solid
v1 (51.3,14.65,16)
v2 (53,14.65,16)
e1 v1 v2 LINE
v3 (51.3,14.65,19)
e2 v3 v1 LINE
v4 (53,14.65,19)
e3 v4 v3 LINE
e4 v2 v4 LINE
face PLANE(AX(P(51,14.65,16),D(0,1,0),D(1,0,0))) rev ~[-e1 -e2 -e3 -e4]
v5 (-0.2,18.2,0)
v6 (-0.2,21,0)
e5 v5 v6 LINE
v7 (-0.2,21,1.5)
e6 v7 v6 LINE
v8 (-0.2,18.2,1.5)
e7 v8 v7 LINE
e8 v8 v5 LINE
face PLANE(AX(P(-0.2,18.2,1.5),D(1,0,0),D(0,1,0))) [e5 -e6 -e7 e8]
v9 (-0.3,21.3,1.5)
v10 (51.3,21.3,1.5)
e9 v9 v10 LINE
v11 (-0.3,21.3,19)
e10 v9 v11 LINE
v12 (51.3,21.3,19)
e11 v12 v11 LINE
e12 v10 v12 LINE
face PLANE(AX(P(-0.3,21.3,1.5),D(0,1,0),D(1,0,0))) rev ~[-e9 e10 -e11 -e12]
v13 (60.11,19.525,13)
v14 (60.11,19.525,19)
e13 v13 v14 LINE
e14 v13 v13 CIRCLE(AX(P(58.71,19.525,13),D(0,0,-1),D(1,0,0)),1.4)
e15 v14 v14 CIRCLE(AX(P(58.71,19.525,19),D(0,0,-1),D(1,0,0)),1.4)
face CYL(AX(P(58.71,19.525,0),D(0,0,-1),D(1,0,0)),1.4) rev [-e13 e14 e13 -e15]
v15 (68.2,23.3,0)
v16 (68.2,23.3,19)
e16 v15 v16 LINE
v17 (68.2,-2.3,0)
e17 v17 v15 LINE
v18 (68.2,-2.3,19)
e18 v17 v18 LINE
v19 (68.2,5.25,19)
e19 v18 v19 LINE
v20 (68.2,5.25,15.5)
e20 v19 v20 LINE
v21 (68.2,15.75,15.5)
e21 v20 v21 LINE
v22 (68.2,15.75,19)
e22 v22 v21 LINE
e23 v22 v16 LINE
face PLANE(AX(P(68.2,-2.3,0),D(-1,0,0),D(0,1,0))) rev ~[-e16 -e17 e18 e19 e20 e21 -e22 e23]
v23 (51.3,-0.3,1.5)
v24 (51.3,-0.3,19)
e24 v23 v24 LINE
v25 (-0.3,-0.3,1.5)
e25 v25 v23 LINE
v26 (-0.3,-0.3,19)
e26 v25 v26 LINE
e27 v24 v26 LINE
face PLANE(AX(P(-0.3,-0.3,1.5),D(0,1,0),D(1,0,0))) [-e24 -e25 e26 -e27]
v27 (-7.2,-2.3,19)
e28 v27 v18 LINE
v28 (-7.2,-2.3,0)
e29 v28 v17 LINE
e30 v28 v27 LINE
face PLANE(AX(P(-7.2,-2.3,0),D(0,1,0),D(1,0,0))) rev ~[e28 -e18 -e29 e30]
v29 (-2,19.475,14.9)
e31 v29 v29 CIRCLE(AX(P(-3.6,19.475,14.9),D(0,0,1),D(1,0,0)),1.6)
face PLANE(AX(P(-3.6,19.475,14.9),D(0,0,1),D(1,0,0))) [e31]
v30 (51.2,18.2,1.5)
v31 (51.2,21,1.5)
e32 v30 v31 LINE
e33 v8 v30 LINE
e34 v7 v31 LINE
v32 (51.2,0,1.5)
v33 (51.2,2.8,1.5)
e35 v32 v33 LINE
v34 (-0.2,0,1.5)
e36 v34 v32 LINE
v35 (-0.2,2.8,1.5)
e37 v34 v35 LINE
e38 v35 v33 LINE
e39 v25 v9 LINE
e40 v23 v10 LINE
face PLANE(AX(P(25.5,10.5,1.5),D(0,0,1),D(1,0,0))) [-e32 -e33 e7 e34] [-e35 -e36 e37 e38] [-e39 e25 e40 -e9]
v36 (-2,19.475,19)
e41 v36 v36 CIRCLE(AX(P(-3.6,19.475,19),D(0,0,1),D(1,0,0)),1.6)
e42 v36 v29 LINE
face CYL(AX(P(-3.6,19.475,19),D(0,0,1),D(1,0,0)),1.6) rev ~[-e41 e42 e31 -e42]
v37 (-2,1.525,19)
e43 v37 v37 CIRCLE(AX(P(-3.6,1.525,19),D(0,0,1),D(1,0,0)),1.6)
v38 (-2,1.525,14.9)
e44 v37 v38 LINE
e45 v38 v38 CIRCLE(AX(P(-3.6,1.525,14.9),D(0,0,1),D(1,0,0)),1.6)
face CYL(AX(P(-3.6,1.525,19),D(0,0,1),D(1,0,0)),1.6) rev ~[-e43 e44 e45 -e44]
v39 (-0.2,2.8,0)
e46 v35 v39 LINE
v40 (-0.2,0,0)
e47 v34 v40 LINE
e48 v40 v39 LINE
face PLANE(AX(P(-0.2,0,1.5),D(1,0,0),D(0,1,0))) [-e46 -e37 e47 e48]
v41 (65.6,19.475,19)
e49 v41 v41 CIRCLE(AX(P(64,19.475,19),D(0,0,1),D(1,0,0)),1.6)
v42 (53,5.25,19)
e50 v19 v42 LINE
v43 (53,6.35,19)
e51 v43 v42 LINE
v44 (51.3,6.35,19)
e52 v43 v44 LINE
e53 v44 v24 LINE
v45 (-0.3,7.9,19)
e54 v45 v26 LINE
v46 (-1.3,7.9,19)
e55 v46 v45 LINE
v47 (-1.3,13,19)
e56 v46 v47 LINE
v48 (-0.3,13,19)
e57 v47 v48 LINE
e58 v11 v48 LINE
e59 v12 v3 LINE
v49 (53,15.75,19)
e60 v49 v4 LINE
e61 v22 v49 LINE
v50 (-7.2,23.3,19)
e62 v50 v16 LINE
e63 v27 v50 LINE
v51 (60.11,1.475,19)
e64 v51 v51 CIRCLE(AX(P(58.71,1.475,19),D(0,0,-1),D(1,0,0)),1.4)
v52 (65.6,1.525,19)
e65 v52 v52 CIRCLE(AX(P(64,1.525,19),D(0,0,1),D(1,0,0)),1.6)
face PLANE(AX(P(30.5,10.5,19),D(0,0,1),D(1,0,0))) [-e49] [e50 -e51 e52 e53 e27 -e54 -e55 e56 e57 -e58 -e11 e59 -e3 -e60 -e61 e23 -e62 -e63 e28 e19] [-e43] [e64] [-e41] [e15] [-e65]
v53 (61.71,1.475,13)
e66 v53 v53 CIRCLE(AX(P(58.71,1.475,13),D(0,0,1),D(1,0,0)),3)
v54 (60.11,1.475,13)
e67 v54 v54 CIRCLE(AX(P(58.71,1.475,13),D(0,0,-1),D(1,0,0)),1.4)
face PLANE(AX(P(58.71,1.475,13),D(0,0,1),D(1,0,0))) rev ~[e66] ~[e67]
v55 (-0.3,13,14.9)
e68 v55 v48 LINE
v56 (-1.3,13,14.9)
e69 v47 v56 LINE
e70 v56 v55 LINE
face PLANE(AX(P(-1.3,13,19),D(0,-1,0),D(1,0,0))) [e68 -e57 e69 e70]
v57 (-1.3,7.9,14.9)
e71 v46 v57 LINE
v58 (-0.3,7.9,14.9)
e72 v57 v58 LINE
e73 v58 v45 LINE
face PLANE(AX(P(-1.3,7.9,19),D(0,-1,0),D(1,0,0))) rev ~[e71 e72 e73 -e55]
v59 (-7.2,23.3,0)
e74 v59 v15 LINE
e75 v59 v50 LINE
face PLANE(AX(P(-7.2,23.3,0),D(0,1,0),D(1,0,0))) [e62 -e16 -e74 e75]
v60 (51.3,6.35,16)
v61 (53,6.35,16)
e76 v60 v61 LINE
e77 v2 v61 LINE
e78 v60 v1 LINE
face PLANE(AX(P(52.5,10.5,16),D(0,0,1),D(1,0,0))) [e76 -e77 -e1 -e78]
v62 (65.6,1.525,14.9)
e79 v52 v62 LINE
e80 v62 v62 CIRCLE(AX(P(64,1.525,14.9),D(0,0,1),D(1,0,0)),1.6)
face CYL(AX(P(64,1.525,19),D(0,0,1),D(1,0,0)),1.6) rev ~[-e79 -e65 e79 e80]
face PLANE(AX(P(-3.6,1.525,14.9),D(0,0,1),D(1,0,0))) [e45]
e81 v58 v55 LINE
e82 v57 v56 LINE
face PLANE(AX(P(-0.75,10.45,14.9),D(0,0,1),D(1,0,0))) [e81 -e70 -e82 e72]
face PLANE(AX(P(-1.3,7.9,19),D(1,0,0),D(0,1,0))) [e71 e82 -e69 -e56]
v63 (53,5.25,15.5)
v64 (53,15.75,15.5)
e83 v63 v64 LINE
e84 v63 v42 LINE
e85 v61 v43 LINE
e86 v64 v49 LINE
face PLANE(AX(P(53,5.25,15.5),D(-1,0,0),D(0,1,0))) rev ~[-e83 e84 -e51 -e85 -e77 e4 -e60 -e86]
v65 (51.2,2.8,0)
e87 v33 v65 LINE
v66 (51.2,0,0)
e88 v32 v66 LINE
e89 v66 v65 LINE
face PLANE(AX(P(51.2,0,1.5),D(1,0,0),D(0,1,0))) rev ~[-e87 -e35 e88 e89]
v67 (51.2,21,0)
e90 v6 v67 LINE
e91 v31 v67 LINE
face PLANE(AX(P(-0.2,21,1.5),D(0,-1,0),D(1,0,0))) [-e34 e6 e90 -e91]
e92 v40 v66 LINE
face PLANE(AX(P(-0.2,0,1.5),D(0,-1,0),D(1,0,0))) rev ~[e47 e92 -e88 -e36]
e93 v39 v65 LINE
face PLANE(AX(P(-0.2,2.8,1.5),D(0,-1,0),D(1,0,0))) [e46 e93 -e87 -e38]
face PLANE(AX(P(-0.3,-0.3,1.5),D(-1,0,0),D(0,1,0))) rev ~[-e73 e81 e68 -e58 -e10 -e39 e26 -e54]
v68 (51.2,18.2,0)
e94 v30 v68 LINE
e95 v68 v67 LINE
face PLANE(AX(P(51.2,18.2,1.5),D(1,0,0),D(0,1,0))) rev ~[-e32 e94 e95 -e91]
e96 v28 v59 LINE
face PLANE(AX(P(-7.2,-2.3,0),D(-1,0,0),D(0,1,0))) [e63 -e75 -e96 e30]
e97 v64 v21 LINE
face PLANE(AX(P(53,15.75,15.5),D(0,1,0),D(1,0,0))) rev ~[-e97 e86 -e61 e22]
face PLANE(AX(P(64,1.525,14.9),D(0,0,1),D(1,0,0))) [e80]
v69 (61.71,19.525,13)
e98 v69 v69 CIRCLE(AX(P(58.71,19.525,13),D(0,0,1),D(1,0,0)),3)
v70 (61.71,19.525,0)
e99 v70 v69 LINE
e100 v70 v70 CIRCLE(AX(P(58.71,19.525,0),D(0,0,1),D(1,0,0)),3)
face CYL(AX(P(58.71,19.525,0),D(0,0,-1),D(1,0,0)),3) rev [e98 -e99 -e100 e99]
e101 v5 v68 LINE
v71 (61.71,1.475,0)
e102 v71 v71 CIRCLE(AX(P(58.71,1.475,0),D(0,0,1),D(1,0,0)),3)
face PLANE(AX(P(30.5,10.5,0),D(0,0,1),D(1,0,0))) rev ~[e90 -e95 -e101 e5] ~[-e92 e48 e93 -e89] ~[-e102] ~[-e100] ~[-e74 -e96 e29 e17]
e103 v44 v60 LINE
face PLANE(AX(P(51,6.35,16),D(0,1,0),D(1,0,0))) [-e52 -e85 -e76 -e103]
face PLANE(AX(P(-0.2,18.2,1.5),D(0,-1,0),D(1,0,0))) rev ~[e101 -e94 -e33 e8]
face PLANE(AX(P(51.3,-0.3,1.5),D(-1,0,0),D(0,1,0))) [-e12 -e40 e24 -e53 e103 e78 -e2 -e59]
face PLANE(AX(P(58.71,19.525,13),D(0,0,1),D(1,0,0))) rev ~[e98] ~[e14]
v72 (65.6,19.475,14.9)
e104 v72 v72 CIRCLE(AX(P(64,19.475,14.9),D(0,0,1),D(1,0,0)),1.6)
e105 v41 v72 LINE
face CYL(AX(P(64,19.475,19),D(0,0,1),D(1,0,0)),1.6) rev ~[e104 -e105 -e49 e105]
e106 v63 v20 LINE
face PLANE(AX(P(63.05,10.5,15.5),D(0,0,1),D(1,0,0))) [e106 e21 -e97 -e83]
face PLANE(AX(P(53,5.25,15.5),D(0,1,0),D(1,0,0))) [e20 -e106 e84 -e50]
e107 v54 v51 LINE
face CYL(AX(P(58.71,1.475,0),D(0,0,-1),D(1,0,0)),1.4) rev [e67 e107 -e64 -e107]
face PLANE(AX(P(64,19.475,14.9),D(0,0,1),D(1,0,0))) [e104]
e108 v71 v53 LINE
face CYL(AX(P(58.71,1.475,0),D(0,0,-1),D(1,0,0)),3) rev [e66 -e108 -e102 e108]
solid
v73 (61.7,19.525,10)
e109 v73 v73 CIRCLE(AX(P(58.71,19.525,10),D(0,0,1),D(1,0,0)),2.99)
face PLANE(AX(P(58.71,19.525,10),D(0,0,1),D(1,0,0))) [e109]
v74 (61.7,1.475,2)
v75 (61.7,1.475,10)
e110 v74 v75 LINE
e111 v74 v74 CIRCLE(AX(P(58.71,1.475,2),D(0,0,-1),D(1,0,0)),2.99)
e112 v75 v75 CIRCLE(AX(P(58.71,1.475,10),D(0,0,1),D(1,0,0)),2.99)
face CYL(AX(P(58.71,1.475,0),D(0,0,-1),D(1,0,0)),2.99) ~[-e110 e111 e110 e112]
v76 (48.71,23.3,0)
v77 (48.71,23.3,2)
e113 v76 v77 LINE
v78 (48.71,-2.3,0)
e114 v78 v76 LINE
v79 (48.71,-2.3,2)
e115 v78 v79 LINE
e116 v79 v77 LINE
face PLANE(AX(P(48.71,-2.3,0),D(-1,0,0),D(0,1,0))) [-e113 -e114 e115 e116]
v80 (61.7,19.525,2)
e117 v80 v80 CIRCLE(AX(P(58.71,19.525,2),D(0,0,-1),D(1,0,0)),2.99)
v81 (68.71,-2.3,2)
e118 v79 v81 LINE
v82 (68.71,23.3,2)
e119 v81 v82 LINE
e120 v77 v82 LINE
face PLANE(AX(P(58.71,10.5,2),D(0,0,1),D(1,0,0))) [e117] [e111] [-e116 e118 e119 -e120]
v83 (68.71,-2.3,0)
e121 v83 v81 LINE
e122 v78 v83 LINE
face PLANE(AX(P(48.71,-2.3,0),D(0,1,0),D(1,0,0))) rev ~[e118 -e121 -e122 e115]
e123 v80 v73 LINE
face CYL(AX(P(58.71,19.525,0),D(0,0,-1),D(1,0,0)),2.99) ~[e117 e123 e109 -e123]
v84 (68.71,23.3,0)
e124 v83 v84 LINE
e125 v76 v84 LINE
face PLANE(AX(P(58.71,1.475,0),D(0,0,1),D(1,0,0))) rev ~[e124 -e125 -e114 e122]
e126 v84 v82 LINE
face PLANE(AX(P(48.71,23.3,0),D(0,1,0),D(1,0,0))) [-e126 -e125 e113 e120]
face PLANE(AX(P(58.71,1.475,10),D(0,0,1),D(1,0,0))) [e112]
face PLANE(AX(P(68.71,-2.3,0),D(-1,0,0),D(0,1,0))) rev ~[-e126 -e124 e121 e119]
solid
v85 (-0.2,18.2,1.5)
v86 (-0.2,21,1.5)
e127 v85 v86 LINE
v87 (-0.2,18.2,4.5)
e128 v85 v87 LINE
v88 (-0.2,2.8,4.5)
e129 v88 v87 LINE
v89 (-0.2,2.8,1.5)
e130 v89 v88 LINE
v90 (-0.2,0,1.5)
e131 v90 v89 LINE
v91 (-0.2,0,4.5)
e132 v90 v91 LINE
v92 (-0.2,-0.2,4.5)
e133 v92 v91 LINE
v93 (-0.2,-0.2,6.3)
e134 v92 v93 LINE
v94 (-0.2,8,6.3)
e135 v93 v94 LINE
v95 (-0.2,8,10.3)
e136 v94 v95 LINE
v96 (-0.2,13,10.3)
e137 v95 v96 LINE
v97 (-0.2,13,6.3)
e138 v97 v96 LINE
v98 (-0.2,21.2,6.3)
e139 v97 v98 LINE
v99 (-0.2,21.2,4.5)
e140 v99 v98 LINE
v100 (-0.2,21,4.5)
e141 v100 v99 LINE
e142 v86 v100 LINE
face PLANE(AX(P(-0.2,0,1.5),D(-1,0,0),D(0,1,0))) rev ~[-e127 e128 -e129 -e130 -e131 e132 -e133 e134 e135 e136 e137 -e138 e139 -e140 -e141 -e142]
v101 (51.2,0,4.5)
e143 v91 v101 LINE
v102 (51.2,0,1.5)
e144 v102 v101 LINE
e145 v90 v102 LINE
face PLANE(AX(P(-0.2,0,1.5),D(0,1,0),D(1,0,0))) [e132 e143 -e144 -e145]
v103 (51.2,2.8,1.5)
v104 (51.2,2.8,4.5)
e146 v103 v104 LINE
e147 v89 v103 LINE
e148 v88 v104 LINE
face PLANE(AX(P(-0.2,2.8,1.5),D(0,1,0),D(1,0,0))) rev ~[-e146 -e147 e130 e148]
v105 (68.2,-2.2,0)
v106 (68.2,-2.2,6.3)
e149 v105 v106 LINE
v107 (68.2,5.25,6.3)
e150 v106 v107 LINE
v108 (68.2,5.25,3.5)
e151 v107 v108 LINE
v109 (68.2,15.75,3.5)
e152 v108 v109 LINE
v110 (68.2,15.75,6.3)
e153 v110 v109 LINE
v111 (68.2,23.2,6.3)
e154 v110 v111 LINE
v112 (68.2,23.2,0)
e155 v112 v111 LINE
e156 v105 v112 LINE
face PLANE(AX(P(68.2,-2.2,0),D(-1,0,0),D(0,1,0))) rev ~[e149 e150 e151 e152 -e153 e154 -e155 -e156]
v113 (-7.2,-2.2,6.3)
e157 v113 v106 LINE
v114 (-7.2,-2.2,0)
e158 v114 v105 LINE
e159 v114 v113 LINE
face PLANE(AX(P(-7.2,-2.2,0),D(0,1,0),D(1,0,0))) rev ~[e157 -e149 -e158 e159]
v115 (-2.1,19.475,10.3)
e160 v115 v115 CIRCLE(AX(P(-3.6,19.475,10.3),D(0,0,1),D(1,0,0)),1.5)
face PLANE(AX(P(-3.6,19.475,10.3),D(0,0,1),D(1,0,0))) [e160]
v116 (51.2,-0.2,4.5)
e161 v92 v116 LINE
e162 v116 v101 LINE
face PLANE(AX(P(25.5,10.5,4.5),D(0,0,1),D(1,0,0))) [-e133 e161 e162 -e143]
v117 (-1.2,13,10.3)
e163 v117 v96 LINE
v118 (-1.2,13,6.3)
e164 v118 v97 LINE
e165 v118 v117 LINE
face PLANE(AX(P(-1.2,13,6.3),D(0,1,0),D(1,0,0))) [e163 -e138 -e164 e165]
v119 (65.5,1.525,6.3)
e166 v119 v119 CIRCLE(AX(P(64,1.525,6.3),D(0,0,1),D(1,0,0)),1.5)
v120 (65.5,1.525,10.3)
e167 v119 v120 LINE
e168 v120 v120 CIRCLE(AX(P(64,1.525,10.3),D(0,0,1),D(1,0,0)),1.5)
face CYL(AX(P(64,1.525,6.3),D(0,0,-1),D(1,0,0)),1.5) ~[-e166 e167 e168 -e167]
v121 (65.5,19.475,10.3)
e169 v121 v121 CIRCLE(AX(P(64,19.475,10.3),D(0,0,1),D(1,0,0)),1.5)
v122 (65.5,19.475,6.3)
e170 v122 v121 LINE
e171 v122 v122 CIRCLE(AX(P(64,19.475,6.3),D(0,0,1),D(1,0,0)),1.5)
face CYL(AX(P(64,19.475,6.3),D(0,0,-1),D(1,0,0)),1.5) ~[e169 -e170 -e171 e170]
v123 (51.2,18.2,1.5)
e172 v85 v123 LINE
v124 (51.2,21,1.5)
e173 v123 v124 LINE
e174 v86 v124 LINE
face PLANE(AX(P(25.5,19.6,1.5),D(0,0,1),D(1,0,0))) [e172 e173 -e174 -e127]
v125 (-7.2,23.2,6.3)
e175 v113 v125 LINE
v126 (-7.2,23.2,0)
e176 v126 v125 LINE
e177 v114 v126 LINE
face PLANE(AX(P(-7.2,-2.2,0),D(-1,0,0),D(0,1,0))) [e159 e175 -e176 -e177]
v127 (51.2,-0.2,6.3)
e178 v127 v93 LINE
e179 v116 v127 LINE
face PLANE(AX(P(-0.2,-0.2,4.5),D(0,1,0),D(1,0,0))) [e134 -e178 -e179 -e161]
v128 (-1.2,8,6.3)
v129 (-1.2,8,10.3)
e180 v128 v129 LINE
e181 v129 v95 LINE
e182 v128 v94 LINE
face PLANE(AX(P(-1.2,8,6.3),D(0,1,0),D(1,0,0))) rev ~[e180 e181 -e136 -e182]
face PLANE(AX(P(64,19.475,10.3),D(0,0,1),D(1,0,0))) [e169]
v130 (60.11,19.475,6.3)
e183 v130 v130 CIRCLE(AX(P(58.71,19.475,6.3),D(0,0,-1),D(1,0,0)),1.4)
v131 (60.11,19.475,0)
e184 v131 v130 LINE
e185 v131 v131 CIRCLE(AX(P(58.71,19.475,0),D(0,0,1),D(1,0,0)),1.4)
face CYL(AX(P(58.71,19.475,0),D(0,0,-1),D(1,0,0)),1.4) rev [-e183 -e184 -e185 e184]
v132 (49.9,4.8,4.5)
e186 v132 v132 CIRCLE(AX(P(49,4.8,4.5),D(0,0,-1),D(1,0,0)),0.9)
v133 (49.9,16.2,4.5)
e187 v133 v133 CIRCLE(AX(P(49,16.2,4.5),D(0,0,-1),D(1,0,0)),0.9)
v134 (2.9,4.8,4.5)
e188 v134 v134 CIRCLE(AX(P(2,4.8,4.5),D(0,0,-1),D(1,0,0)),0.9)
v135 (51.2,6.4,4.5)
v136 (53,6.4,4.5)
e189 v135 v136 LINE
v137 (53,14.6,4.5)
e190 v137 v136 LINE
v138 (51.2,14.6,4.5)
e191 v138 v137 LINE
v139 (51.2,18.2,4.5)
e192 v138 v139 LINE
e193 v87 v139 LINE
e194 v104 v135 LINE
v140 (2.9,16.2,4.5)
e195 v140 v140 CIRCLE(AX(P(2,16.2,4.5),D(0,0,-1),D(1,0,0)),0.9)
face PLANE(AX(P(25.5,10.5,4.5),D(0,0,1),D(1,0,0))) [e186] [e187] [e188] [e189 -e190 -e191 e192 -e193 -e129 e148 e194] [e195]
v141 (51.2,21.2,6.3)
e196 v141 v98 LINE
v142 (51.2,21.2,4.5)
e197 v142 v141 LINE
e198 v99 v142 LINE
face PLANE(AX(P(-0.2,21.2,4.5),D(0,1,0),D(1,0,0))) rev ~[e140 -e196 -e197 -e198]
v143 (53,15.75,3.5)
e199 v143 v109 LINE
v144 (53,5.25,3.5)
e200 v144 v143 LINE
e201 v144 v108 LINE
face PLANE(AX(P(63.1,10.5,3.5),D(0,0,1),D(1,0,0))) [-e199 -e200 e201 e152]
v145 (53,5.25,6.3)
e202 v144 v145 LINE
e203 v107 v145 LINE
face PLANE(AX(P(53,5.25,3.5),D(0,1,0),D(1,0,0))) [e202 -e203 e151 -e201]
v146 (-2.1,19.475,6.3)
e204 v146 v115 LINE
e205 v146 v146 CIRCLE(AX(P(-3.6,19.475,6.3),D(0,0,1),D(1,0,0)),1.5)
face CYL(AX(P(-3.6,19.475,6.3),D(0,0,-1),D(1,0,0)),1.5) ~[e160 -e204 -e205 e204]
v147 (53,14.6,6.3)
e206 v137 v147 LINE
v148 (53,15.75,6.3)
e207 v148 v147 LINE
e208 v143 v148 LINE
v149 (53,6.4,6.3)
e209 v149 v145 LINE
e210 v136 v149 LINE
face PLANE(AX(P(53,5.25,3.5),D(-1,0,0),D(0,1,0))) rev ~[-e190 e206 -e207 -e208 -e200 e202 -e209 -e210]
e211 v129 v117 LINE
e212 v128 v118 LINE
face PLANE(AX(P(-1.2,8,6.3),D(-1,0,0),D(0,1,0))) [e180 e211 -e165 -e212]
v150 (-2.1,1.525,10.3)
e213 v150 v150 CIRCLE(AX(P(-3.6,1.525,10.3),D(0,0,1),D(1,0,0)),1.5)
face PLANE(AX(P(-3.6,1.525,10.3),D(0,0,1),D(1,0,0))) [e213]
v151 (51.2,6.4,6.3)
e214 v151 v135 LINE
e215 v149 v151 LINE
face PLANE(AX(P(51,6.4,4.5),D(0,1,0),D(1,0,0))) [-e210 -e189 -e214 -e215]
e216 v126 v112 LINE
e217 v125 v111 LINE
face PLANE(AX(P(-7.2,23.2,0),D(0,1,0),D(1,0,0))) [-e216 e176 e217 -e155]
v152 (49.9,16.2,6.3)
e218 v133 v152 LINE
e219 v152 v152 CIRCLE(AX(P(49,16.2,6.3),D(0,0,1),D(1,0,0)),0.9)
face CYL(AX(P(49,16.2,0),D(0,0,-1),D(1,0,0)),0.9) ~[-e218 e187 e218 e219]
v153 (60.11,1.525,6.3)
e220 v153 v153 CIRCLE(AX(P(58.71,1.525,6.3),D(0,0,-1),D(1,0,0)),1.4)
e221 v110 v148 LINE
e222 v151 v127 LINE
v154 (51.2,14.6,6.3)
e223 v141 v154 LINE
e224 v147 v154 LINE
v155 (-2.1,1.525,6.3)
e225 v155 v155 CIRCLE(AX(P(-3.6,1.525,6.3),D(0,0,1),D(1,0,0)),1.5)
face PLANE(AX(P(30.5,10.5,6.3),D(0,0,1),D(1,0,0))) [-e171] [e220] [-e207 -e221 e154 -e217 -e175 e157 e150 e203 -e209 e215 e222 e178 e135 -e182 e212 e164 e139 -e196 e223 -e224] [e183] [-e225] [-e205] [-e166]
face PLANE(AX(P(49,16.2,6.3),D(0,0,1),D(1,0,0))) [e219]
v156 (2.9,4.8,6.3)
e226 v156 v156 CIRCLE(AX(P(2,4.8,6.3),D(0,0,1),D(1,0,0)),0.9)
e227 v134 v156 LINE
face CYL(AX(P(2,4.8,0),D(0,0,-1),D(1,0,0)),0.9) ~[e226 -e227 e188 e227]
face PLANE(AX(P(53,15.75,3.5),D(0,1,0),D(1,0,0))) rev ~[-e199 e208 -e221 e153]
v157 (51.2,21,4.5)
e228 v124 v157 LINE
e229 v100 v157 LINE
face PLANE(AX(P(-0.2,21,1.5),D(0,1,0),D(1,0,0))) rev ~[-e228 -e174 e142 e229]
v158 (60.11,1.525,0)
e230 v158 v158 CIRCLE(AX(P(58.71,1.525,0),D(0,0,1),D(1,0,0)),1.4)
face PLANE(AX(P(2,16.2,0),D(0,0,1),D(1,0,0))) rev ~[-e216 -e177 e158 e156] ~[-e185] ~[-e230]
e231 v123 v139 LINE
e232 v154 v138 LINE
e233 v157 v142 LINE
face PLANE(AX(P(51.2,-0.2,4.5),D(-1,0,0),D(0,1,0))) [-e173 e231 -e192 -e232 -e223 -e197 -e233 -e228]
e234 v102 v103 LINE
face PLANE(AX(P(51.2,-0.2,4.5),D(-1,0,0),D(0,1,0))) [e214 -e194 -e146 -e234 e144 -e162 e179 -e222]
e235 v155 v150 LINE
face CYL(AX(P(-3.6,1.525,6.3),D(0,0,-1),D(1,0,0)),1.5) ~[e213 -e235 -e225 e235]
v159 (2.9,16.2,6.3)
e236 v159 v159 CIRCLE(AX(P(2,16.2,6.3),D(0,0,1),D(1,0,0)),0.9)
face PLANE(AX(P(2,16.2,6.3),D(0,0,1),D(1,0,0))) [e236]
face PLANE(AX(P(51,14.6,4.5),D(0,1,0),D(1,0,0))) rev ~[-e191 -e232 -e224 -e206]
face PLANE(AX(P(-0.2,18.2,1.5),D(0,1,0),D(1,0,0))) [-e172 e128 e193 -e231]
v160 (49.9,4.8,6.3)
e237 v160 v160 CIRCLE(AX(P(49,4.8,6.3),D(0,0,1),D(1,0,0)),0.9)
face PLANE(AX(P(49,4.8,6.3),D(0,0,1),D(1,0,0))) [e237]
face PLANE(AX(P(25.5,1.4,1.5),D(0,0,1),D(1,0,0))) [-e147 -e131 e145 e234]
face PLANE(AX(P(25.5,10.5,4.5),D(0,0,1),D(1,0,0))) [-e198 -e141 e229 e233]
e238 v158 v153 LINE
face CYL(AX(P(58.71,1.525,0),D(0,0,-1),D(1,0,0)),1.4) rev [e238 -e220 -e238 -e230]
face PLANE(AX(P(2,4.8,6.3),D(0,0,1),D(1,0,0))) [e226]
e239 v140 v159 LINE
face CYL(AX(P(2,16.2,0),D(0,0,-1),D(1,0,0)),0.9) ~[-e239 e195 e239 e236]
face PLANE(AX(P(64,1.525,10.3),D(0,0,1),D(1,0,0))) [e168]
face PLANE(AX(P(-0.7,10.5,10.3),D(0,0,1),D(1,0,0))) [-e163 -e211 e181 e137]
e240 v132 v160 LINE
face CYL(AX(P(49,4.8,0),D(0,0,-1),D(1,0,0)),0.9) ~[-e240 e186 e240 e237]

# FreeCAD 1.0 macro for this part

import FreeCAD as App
import Part
import Sketcher
from FreeCAD import Vector
Q = App.Units.Quantity


def add_polygon(sketch, points):
    """Adds a closed chain of lines whose ends are joined by coincident constraints."""
    first, n = sketch.GeometryCount, len(points)
    for a, b in zip(points, points[1:] + points[:1]):
        sketch.addGeometry(Part.LineSegment(App.Vector(*a, 0), App.Vector(*b, 0)), False)
    for i in range(n):
        sketch.addConstraint(Sketcher.Constraint("Coincident", first + i, 2, first + (i + 1) % n, 1))

doc = App.newDocument("Part")
body = doc.addObject("PartDesign::Body", "Body")

# Sketch on XY plane
sketch1 = body.newObject("Sketcher::SketchObject", "Sketch")
sketch1.AttachmentSupport = (doc.getObject("XY_Plane"), [""])
sketch1.MapMode = "FlatFace"
add_polygon(sketch1, [(-7, 23), (-7, -2), (68, -2), (68, 23)])  # lines 0-3
sketch1.addConstraint(Sketcher.Constraint("Vertical", 0))
sketch1.addConstraint(Sketcher.Constraint("Horizontal", 1))
sketch1.addConstraint(Sketcher.Constraint("Vertical", 2))
sketch1.addConstraint(Sketcher.Constraint("Horizontal", 3))
sketch1.addConstraint(Sketcher.Constraint("DistanceX", 1, 1, 1, 2, Q("75.4 mm")))
sketch1.addConstraint(Sketcher.Constraint("DistanceY", 0, 2, 0, 1, Q("25.4 mm")))
sketch1.addConstraint(Sketcher.Constraint("DistanceX", 0, 2, -1, 1, Q("7.2 mm")))
sketch1.addConstraint(Sketcher.Constraint("DistanceY", 0, 2, -1, 1, Q("2.2 mm")))
pad1 = body.newObject("PartDesign::Pad", "Pad")
pad1.Profile = sketch1
pad1.Length = 6.3

# Sketch on XY plane
sketch2 = body.newObject("Sketcher::SketchObject", "Sketch001")
sketch2.AttachmentSupport = (doc.getObject("XY_Plane"), [""])
sketch2.MapMode = "FlatFace"
sketch2.AttachmentOffset = App.Placement(Vector(0, 0, 1.5), App.Rotation())
add_polygon(sketch2, [(-0.2, 2.8), (-0.2, 0), (51.2, 0), (51.2, 2.8)])  # lines 0-3
add_polygon(sketch2, [(-0.2, 21), (-0.2, 18.2), (51.2, 18.2), (51.2, 21)])  # lines 4-7
sketch2.addConstraint(Sketcher.Constraint("Vertical", 0))
sketch2.addConstraint(Sketcher.Constraint("Horizontal", 1))
sketch2.addConstraint(Sketcher.Constraint("Vertical", 2))
sketch2.addConstraint(Sketcher.Constraint("Horizontal", 3))
sketch2.addConstraint(Sketcher.Constraint("Vertical", 4))
sketch2.addConstraint(Sketcher.Constraint("Horizontal", 5))
sketch2.addConstraint(Sketcher.Constraint("Vertical", 6))
sketch2.addConstraint(Sketcher.Constraint("Horizontal", 7))
sketch2.addConstraint(Sketcher.Constraint("PointOnObject", 0, 2, -1))
sketch2.addConstraint(Sketcher.Constraint("Vertical", 3, 2, 4, 2))
sketch2.addConstraint(Sketcher.Constraint("Vertical", 2, 2, 5, 2))
sketch2.addConstraint(Sketcher.Constraint("Equal", 2, 4))
sketch2.addConstraint(Sketcher.Constraint("DistanceX", 1, 1, 1, 2, Q("51.4 mm")))
sketch2.addConstraint(Sketcher.Constraint("DistanceY", 0, 2, 0, 1, Q("2.8 mm")))
sketch2.addConstraint(Sketcher.Constraint("DistanceY", -1, 1, 6, 2, Q("21 mm")))
sketch2.addConstraint(Sketcher.Constraint("DistanceX", 0, 2, -1, 1, Q("0.2 mm")))
pocket1 = body.newObject("PartDesign::Pocket", "Pocket")
pocket1.Profile = sketch2
pocket1.Type = "ThroughAll"
pocket1.Reversed = True

# Sketch on XY plane
sketch3 = body.newObject("Sketcher::SketchObject", "Sketch002")
sketch3.AttachmentSupport = (doc.getObject("XY_Plane"), [""])
sketch3.MapMode = "FlatFace"
sketch3.AttachmentOffset = App.Placement(Vector(0, 0, 4.5), App.Rotation())
add_polygon(sketch3, [(0, 21), (0, 0), (51, 0), (51, 21)])  # lines 0-3
sketch3.addConstraint(Sketcher.Constraint("Vertical", 0))
sketch3.addConstraint(Sketcher.Constraint("Horizontal", 1))
sketch3.addConstraint(Sketcher.Constraint("Vertical", 2))
sketch3.addConstraint(Sketcher.Constraint("Horizontal", 3))
sketch3.addConstraint(Sketcher.Constraint("DistanceX", 1, 1, 1, 2, Q("51.4 mm")))
sketch3.addConstraint(Sketcher.Constraint("DistanceY", 0, 2, 0, 1, Q("21.4 mm")))
sketch3.addConstraint(Sketcher.Constraint("DistanceX", 0, 2, -1, 1, Q("0.2 mm")))
sketch3.addConstraint(Sketcher.Constraint("DistanceY", 0, 2, -1, 1, Q("0.2 mm")))
pocket2 = body.newObject("PartDesign::Pocket", "Pocket001")
pocket2.Profile = sketch3
pocket2.Type = "ThroughAll"
pocket2.Reversed = True

# Sketch on XY plane
sketch4 = body.newObject("Sketcher::SketchObject", "Sketch003")
sketch4.AttachmentSupport = (doc.getObject("XY_Plane"), [""])
sketch4.MapMode = "FlatFace"
sketch4.addGeometry(Part.Circle(Vector(2, 16.2, 0), Vector(0, 0, 1), 0.9), False)
sketch4.addGeometry(Part.Circle(Vector(2, 4.8, 0), Vector(0, 0, 1), 0.9), False)
sketch4.addGeometry(Part.Circle(Vector(49, 16.2, 0), Vector(0, 0, 1), 0.9), False)
sketch4.addGeometry(Part.Circle(Vector(49, 4.8, 0), Vector(0, 0, 1), 0.9), False)
sketch4.addConstraint(Sketcher.Constraint("Equal", 0, 1))
sketch4.addConstraint(Sketcher.Constraint("Equal", 1, 2))
sketch4.addConstraint(Sketcher.Constraint("Equal", 2, 3))
sketch4.addConstraint(Sketcher.Constraint("Horizontal", 0, 3, 2, 3))
sketch4.addConstraint(Sketcher.Constraint("Horizontal", 1, 3, 3, 3))
sketch4.addConstraint(Sketcher.Constraint("Vertical", 0, 3, 1, 3))
sketch4.addConstraint(Sketcher.Constraint("Vertical", 2, 3, 3, 3))
sketch4.addConstraint(Sketcher.Constraint("Diameter", 0, Q("1.8 mm")))
sketch4.addConstraint(Sketcher.Constraint("DistanceX", -1, 1, 0, 3, Q("2 mm")))
sketch4.addConstraint(Sketcher.Constraint("DistanceX", -1, 1, 2, 3, Q("49 mm")))
sketch4.addConstraint(Sketcher.Constraint("DistanceY", -1, 1, 0, 3, Q("16.2 mm")))
sketch4.addConstraint(Sketcher.Constraint("DistanceY", -1, 1, 1, 3, Q("4.8 mm")))
pad2 = body.newObject("PartDesign::Pad", "Pad001")
pad2.Profile = sketch4
pad2.Length = 6.3

# Sketch on XY plane
sketch5 = body.newObject("Sketcher::SketchObject", "Sketch004")
sketch5.AttachmentSupport = (doc.getObject("XY_Plane"), [""])
sketch5.MapMode = "FlatFace"
sketch5.AttachmentOffset = App.Placement(Vector(0, 0, 4.5), App.Rotation())
add_polygon(sketch5, [(51, 14.6), (51, 6.4), (54, 6.4), (54, 14.6)])  # lines 0-3
sketch5.addConstraint(Sketcher.Constraint("Vertical", 0))
sketch5.addConstraint(Sketcher.Constraint("Horizontal", 1))
sketch5.addConstraint(Sketcher.Constraint("Vertical", 2))
sketch5.addConstraint(Sketcher.Constraint("Horizontal", 3))
sketch5.addConstraint(Sketcher.Constraint("DistanceX", 1, 1, 1, 2, Q("3 mm")))
sketch5.addConstraint(Sketcher.Constraint("DistanceY", 0, 2, 0, 1, Q("8.2 mm")))
sketch5.addConstraint(Sketcher.Constraint("DistanceX", -1, 1, 0, 2, Q("51 mm")))
sketch5.addConstraint(Sketcher.Constraint("DistanceY", -1, 1, 0, 2, Q("6.4 mm")))
pocket3 = body.newObject("PartDesign::Pocket", "Pocket002")
pocket3.Profile = sketch5
pocket3.Type = "ThroughAll"
pocket3.Reversed = True

# Sketch on XY plane
sketch6 = body.newObject("Sketcher::SketchObject", "Sketch005")
sketch6.AttachmentSupport = (doc.getObject("XY_Plane"), [""])
sketch6.MapMode = "FlatFace"
sketch6.AttachmentOffset = App.Placement(Vector(0, 0, 3.5), App.Rotation())
add_polygon(sketch6, [(53, 16), (53, 5), (73, 5), (73, 16)])  # lines 0-3
sketch6.addConstraint(Sketcher.Constraint("Vertical", 0))
sketch6.addConstraint(Sketcher.Constraint("Horizontal", 1))
sketch6.addConstraint(Sketcher.Constraint("Vertical", 2))
sketch6.addConstraint(Sketcher.Constraint("Horizontal", 3))
sketch6.addConstraint(Sketcher.Constraint("DistanceX", 1, 1, 1, 2, Q("20.2 mm")))
sketch6.addConstraint(Sketcher.Constraint("DistanceY", 0, 2, 0, 1, Q("10.5 mm")))
sketch6.addConstraint(Sketcher.Constraint("DistanceX", -1, 1, 0, 2, Q("53 mm")))
sketch6.addConstraint(Sketcher.Constraint("DistanceY", -1, 1, 0, 2, Q("5.25 mm")))
pocket4 = body.newObject("PartDesign::Pocket", "Pocket003")
pocket4.Profile = sketch6
pocket4.Length = 5
pocket4.Reversed = True

# Sketch on XY plane
sketch7 = body.newObject("Sketcher::SketchObject", "Sketch006")
sketch7.AttachmentSupport = (doc.getObject("XY_Plane"), [""])
sketch7.MapMode = "FlatFace"
sketch7.addGeometry(Part.Circle(Vector(58.7, 1.5, 0), Vector(0, 0, 1), 1.4), False)
sketch7.addGeometry(Part.Circle(Vector(58.7, 19.5, 0), Vector(0, 0, 1), 1.4), False)
sketch7.addConstraint(Sketcher.Constraint("Equal", 0, 1))
sketch7.addConstraint(Sketcher.Constraint("Vertical", 0, 3, 1, 3))
sketch7.addConstraint(Sketcher.Constraint("Diameter", 0, Q("2.8 mm")))
sketch7.addConstraint(Sketcher.Constraint("DistanceX", -1, 1, 0, 3, Q("58.71 mm")))
sketch7.addConstraint(Sketcher.Constraint("DistanceY", 0, 3, 1, 3, Q("17.95 mm")))
sketch7.addConstraint(Sketcher.Constraint("DistanceY", -1, 1, 0, 3, Q("1.525 mm")))
pocket5 = body.newObject("PartDesign::Pocket", "Pocket004")
pocket5.Profile = sketch7
pocket5.Type = "ThroughAll"
pocket5.Midplane = True

# Sketch on XY plane
sketch8 = body.newObject("Sketcher::SketchObject", "Sketch007")
sketch8.AttachmentSupport = (doc.getObject("XY_Plane"), [""])
sketch8.MapMode = "FlatFace"
sketch8.AttachmentOffset = App.Placement(Vector(0, 0, 6.3), App.Rotation())
sketch8.addGeometry(Part.Circle(Vector(64, 19.5, 0), Vector(0, 0, 1), 1.5), False)  # 0
sketch8.addGeometry(Part.Circle(Vector(64, 1.5, 0), Vector(0, 0, 1), 1.5), False)  # 1
sketch8.addGeometry(Part.Circle(Vector(-3.6, 1.5, 0), Vector(0, 0, 1), 1.5), False)  # 2
sketch8.addGeometry(Part.Circle(Vector(-3.6, 19.5, 0), Vector(0, 0, 1), 1.5), False)  # 3
add_polygon(sketch8, [(-1.2, 13), (-1.2, 8), (-0.2, 8), (-0.2, 13)])  # lines 4-7
sketch8.addConstraint(Sketcher.Constraint("Vertical", 4))
sketch8.addConstraint(Sketcher.Constraint("Horizontal", 5))
sketch8.addConstraint(Sketcher.Constraint("Vertical", 6))
sketch8.addConstraint(Sketcher.Constraint("Horizontal", 7))
sketch8.addConstraint(Sketcher.Constraint("Equal", 0, 1))
sketch8.addConstraint(Sketcher.Constraint("Equal", 1, 2))
sketch8.addConstraint(Sketcher.Constraint("Equal", 2, 3))
sketch8.addConstraint(Sketcher.Constraint("Horizontal", 1, 3, 2, 3))
sketch8.addConstraint(Sketcher.Constraint("Horizontal", 0, 3, 3, 3))
sketch8.addConstraint(Sketcher.Constraint("Vertical", 0, 3, 1, 3))
sketch8.addConstraint(Sketcher.Constraint("Vertical", 2, 3, 3, 3))
sketch8.addConstraint(Sketcher.Constraint("Diameter", 0, Q("3 mm")))
sketch8.addConstraint(Sketcher.Constraint("DistanceX", 5, 1, 5, 2, Q("1 mm")))
sketch8.addConstraint(Sketcher.Constraint("DistanceY", 4, 2, 4, 1, Q("5 mm")))
sketch8.addConstraint(Sketcher.Constraint("DistanceX", -1, 1, 0, 3, Q("64 mm")))
sketch8.addConstraint(Sketcher.Constraint("DistanceY", -1, 1, 4, 2, Q("8 mm")))
sketch8.addConstraint(Sketcher.Constraint("DistanceX", 2, 3, -1, 1, Q("3.6 mm")))
sketch8.addConstraint(Sketcher.Constraint("DistanceX", 4, 2, -1, 1, Q("1.2 mm")))
sketch8.addConstraint(Sketcher.Constraint("DistanceY", 1, 3, 0, 3, Q("17.95 mm")))
sketch8.addConstraint(Sketcher.Constraint("DistanceY", -1, 1, 0, 3, Q("19.475 mm")))
pad3 = body.newObject("PartDesign::Pad", "Pad002")
pad3.Profile = sketch8
pad3.Length = 4
body2 = doc.addObject("PartDesign::Body", "Body001")

# Sketch on XY plane
sketch9 = body2.newObject("Sketcher::SketchObject", "Sketch008")
sketch9.AttachmentSupport = (doc.getObject("XY_Plane001"), [""])
sketch9.MapMode = "FlatFace"
add_polygon(sketch9, [(-7, 23), (-7, -2), (68, -2), (68, 23)])  # lines 0-3
sketch9.addConstraint(Sketcher.Constraint("Vertical", 0))
sketch9.addConstraint(Sketcher.Constraint("Horizontal", 1))
sketch9.addConstraint(Sketcher.Constraint("Vertical", 2))
sketch9.addConstraint(Sketcher.Constraint("Horizontal", 3))
sketch9.addConstraint(Sketcher.Constraint("DistanceX", 1, 1, 1, 2, Q("75.4 mm")))
sketch9.addConstraint(Sketcher.Constraint("DistanceY", 0, 2, 0, 1, Q("25.6 mm")))
sketch9.addConstraint(Sketcher.Constraint("DistanceX", 0, 2, -1, 1, Q("7.2 mm")))
sketch9.addConstraint(Sketcher.Constraint("DistanceY", 0, 2, -1, 1, Q("2.3 mm")))
pad4 = body2.newObject("PartDesign::Pad", "Pad003")
pad4.Profile = sketch9
pad4.Length = 19

# Sketch on XY plane
sketch10 = body2.newObject("Sketcher::SketchObject", "Sketch009")
sketch10.AttachmentSupport = (doc.getObject("XY_Plane001"), [""])
sketch10.MapMode = "FlatFace"
sketch10.AttachmentOffset = App.Placement(Vector(0, 0, 1.5), App.Rotation())
add_polygon(sketch10, [(0, 21), (0, 0), (51, 0), (51, 21)])  # lines 0-3
sketch10.addConstraint(Sketcher.Constraint("Vertical", 0))
sketch10.addConstraint(Sketcher.Constraint("Horizontal", 1))
sketch10.addConstraint(Sketcher.Constraint("Vertical", 2))
sketch10.addConstraint(Sketcher.Constraint("Horizontal", 3))
sketch10.addConstraint(Sketcher.Constraint("DistanceX", 1, 1, 1, 2, Q("51.6 mm")))
sketch10.addConstraint(Sketcher.Constraint("DistanceY", 0, 2, 0, 1, Q("21.6 mm")))
sketch10.addConstraint(Sketcher.Constraint("DistanceX", 0, 2, -1, 1, Q("0.3 mm")))
sketch10.addConstraint(Sketcher.Constraint("DistanceY", 0, 2, -1, 1, Q("0.3 mm")))
pocket6 = body2.newObject("PartDesign::Pocket", "Pocket005")
pocket6.Profile = sketch10
pocket6.Type = "ThroughAll"
pocket6.Reversed = True

# Sketch on XY plane
sketch11 = body2.newObject("Sketcher::SketchObject", "Sketch010")
sketch11.AttachmentSupport = (doc.getObject("XY_Plane001"), [""])
sketch11.MapMode = "FlatFace"
sketch11.AttachmentOffset = App.Placement(Vector(0, 0, 16), App.Rotation())
add_polygon(sketch11, [(51, 14.7), (51, 6.3), (54, 6.3), (54, 14.7)])  # lines 0-3
sketch11.addConstraint(Sketcher.Constraint("Vertical", 0))
sketch11.addConstraint(Sketcher.Constraint("Horizontal", 1))
sketch11.addConstraint(Sketcher.Constraint("Vertical", 2))
sketch11.addConstraint(Sketcher.Constraint("Horizontal", 3))
sketch11.addConstraint(Sketcher.Constraint("DistanceX", 1, 1, 1, 2, Q("3 mm")))
sketch11.addConstraint(Sketcher.Constraint("DistanceY", 0, 2, 0, 1, Q("8.3 mm")))
sketch11.addConstraint(Sketcher.Constraint("DistanceX", -1, 1, 0, 2, Q("51 mm")))
sketch11.addConstraint(Sketcher.Constraint("DistanceY", -1, 1, 0, 2, Q("6.35 mm")))
pocket7 = body2.newObject("PartDesign::Pocket", "Pocket006")
pocket7.Profile = sketch11
pocket7.Type = "ThroughAll"
pocket7.Reversed = True

# Sketch on XY plane
sketch12 = body2.newObject("Sketcher::SketchObject", "Sketch011")
sketch12.AttachmentSupport = (doc.getObject("XY_Plane001"), [""])
sketch12.MapMode = "FlatFace"
sketch12.AttachmentOffset = App.Placement(Vector(0, 0, 15.5), App.Rotation())
add_polygon(sketch12, [(53, 16), (53, 5), (73, 5), (73, 16)])  # lines 0-3
sketch12.addConstraint(Sketcher.Constraint("Vertical", 0))
sketch12.addConstraint(Sketcher.Constraint("Horizontal", 1))
sketch12.addConstraint(Sketcher.Constraint("Vertical", 2))
sketch12.addConstraint(Sketcher.Constraint("Horizontal", 3))
sketch12.addConstraint(Sketcher.Constraint("DistanceX", 1, 1, 1, 2, Q("20.1 mm")))
sketch12.addConstraint(Sketcher.Constraint("DistanceY", 0, 2, 0, 1, Q("10.5 mm")))
sketch12.addConstraint(Sketcher.Constraint("DistanceX", -1, 1, 0, 2, Q("53 mm")))
sketch12.addConstraint(Sketcher.Constraint("DistanceY", -1, 1, 0, 2, Q("5.25 mm")))
pocket8 = body2.newObject("PartDesign::Pocket", "Pocket007")
pocket8.Profile = sketch12
pocket8.Length = 5
pocket8.Reversed = True

# Sketch on XY plane
sketch13 = body2.newObject("Sketcher::SketchObject", "Sketch012")
sketch13.AttachmentSupport = (doc.getObject("XY_Plane001"), [""])
sketch13.MapMode = "FlatFace"
sketch13.addGeometry(Part.Circle(Vector(58.7, 1.5, 0), Vector(0, 0, 1), 1.4), False)
sketch13.addGeometry(Part.Circle(Vector(58.7, 19.5, 0), Vector(0, 0, 1), 1.4), False)
sketch13.addConstraint(Sketcher.Constraint("Equal", 0, 1))
sketch13.addConstraint(Sketcher.Constraint("Vertical", 0, 3, 1, 3))
sketch13.addConstraint(Sketcher.Constraint("Diameter", 0, Q("2.8 mm")))
sketch13.addConstraint(Sketcher.Constraint("DistanceX", -1, 1, 0, 3, Q("58.71 mm")))
sketch13.addConstraint(Sketcher.Constraint("DistanceY", 0, 3, 1, 3, Q("18.05 mm")))
sketch13.addConstraint(Sketcher.Constraint("DistanceY", -1, 1, 0, 3, Q("1.475 mm")))
pocket9 = body2.newObject("PartDesign::Pocket", "Pocket008")
pocket9.Profile = sketch13
pocket9.Type = "ThroughAll"
pocket9.Midplane = True

# Sketch on XY plane
sketch14 = body2.newObject("Sketcher::SketchObject", "Sketch013")
sketch14.AttachmentSupport = (doc.getObject("XY_Plane001"), [""])
sketch14.MapMode = "FlatFace"
sketch14.addGeometry(Part.Circle(Vector(58.7, 1.5, 0), Vector(0, 0, 1), 3), False)
sketch14.addGeometry(Part.Circle(Vector(58.7, 19.5, 0), Vector(0, 0, 1), 3), False)
sketch14.addConstraint(Sketcher.Constraint("Equal", 0, 1))
sketch14.addConstraint(Sketcher.Constraint("Vertical", 0, 3, 1, 3))
sketch14.addConstraint(Sketcher.Constraint("Diameter", 0, Q("6 mm")))
sketch14.addConstraint(Sketcher.Constraint("DistanceX", -1, 1, 0, 3, Q("58.71 mm")))
sketch14.addConstraint(Sketcher.Constraint("DistanceY", 0, 3, 1, 3, Q("18.05 mm")))
sketch14.addConstraint(Sketcher.Constraint("DistanceY", -1, 1, 0, 3, Q("1.475 mm")))
pocket10 = body2.newObject("PartDesign::Pocket", "Pocket009")
pocket10.Profile = sketch14
pocket10.Length = 13
pocket10.Reversed = True

# Sketch on XY plane
sketch15 = body2.newObject("Sketcher::SketchObject", "Sketch014")
sketch15.AttachmentSupport = (doc.getObject("XY_Plane001"), [""])
sketch15.MapMode = "FlatFace"
sketch15.AttachmentOffset = App.Placement(Vector(0, 0, 1.5), App.Rotation())
add_polygon(sketch15, [(-0.2, 2.8), (-0.2, 0), (51.2, 0), (51.2, 2.8)])  # lines 0-3
add_polygon(sketch15, [(-0.2, 21), (-0.2, 18.2), (51.2, 18.2), (51.2, 21)])  # lines 4-7
sketch15.addConstraint(Sketcher.Constraint("Vertical", 0))
sketch15.addConstraint(Sketcher.Constraint("Horizontal", 1))
sketch15.addConstraint(Sketcher.Constraint("Vertical", 2))
sketch15.addConstraint(Sketcher.Constraint("Horizontal", 3))
sketch15.addConstraint(Sketcher.Constraint("Vertical", 4))
sketch15.addConstraint(Sketcher.Constraint("Horizontal", 5))
sketch15.addConstraint(Sketcher.Constraint("Vertical", 6))
sketch15.addConstraint(Sketcher.Constraint("Horizontal", 7))
sketch15.addConstraint(Sketcher.Constraint("PointOnObject", 0, 2, -1))
sketch15.addConstraint(Sketcher.Constraint("Vertical", 3, 2, 4, 2))
sketch15.addConstraint(Sketcher.Constraint("Vertical", 2, 2, 5, 2))
sketch15.addConstraint(Sketcher.Constraint("Equal", 2, 4))
sketch15.addConstraint(Sketcher.Constraint("DistanceX", 1, 1, 1, 2, Q("51.4 mm")))
sketch15.addConstraint(Sketcher.Constraint("DistanceY", 0, 2, 0, 1, Q("2.8 mm")))
sketch15.addConstraint(Sketcher.Constraint("DistanceY", -1, 1, 6, 2, Q("21 mm")))
sketch15.addConstraint(Sketcher.Constraint("DistanceX", 0, 2, -1, 1, Q("0.2 mm")))
pocket11 = body2.newObject("PartDesign::Pocket", "Pocket010")
pocket11.Profile = sketch15
pocket11.Length = 5

# Sketch on XY plane
sketch16 = body2.newObject("Sketcher::SketchObject", "Sketch015")
sketch16.AttachmentSupport = (doc.getObject("XY_Plane001"), [""])
sketch16.MapMode = "FlatFace"
sketch16.AttachmentOffset = App.Placement(Vector(0, 0, 19), App.Rotation())
sketch16.addGeometry(Part.Circle(Vector(64, 19.5, 0), Vector(0, 0, 1), 1.6), False)  # 0
sketch16.addGeometry(Part.Circle(Vector(64, 1.5, 0), Vector(0, 0, 1), 1.6), False)  # 1
sketch16.addGeometry(Part.Circle(Vector(-3.6, 19.5, 0), Vector(0, 0, 1), 1.6), False)  # 2
sketch16.addGeometry(Part.Circle(Vector(-3.6, 1.5, 0), Vector(0, 0, 1), 1.6), False)  # 3
add_polygon(sketch16, [(-1.3, 13), (-1.3, 7.9), (-0.2, 7.9), (-0.2, 13)])  # lines 4-7
sketch16.addConstraint(Sketcher.Constraint("Vertical", 4))
sketch16.addConstraint(Sketcher.Constraint("Horizontal", 5))
sketch16.addConstraint(Sketcher.Constraint("Vertical", 6))
sketch16.addConstraint(Sketcher.Constraint("Horizontal", 7))
sketch16.addConstraint(Sketcher.Constraint("Equal", 0, 1))
sketch16.addConstraint(Sketcher.Constraint("Equal", 1, 2))
sketch16.addConstraint(Sketcher.Constraint("Equal", 2, 3))
sketch16.addConstraint(Sketcher.Constraint("Horizontal", 0, 3, 2, 3))
sketch16.addConstraint(Sketcher.Constraint("Horizontal", 1, 3, 3, 3))
sketch16.addConstraint(Sketcher.Constraint("Vertical", 0, 3, 1, 3))
sketch16.addConstraint(Sketcher.Constraint("Vertical", 2, 3, 3, 3))
sketch16.addConstraint(Sketcher.Constraint("Diameter", 0, Q("3.2 mm")))
sketch16.addConstraint(Sketcher.Constraint("DistanceX", 5, 1, 5, 2, Q("1.1 mm")))
sketch16.addConstraint(Sketcher.Constraint("DistanceY", 4, 2, 4, 1, Q("5.1 mm")))
sketch16.addConstraint(Sketcher.Constraint("DistanceX", -1, 1, 0, 3, Q("64 mm")))
sketch16.addConstraint(Sketcher.Constraint("DistanceY", -1, 1, 6, 2, Q("13 mm")))
sketch16.addConstraint(Sketcher.Constraint("DistanceX", 2, 3, -1, 1, Q("3.6 mm")))
sketch16.addConstraint(Sketcher.Constraint("DistanceX", 4, 2, -1, 1, Q("1.3 mm")))
sketch16.addConstraint(Sketcher.Constraint("DistanceY", 1, 3, 0, 3, Q("17.95 mm")))
sketch16.addConstraint(Sketcher.Constraint("DistanceY", -1, 1, 0, 3, Q("19.475 mm")))
pocket12 = body2.newObject("PartDesign::Pocket", "Pocket011")
pocket12.Profile = sketch16
pocket12.Length = 4.1
body3 = doc.addObject("PartDesign::Body", "Body002")

# Sketch on XY plane
sketch17 = body3.newObject("Sketcher::SketchObject", "Sketch016")
sketch17.AttachmentSupport = (doc.getObject("XY_Plane002"), [""])
sketch17.MapMode = "FlatFace"
add_polygon(sketch17, [(49, 23), (49, -2), (69, -2), (69, 23)])  # lines 0-3
sketch17.addConstraint(Sketcher.Constraint("Vertical", 0))
sketch17.addConstraint(Sketcher.Constraint("Horizontal", 1))
sketch17.addConstraint(Sketcher.Constraint("Vertical", 2))
sketch17.addConstraint(Sketcher.Constraint("Horizontal", 3))
sketch17.addConstraint(Sketcher.Constraint("DistanceX", 1, 1, 1, 2, Q("20 mm")))
sketch17.addConstraint(Sketcher.Constraint("DistanceY", 0, 2, 0, 1, Q("25.6 mm")))
sketch17.addConstraint(Sketcher.Constraint("DistanceY", 0, 2, -1, 1, Q("2.3 mm")))
sketch17.addConstraint(Sketcher.Constraint("DistanceX", -1, 1, 0, 2, Q("48.71 mm")))
pad5 = body3.newObject("PartDesign::Pad", "Pad004")
pad5.Profile = sketch17
pad5.Length = 2

# Sketch on XY plane
sketch18 = body3.newObject("Sketcher::SketchObject", "Sketch017")
sketch18.AttachmentSupport = (doc.getObject("XY_Plane002"), [""])
sketch18.MapMode = "FlatFace"
sketch18.addGeometry(Part.Circle(Vector(58.7, 1.5, 0), Vector(0, 0, 1), 3), False)
sketch18.addGeometry(Part.Circle(Vector(58.7, 19.5, 0), Vector(0, 0, 1), 3), False)
sketch18.addConstraint(Sketcher.Constraint("Equal", 0, 1))
sketch18.addConstraint(Sketcher.Constraint("Vertical", 0, 3, 1, 3))
sketch18.addConstraint(Sketcher.Constraint("Diameter", 0, Q("5.98 mm")))
sketch18.addConstraint(Sketcher.Constraint("DistanceX", -1, 1, 0, 3, Q("58.71 mm")))
sketch18.addConstraint(Sketcher.Constraint("DistanceY", 0, 3, 1, 3, Q("18.05 mm")))
sketch18.addConstraint(Sketcher.Constraint("DistanceY", -1, 1, 0, 3, Q("1.475 mm")))
pad6 = body3.newObject("PartDesign::Pad", "Pad005")
pad6.Profile = sketch18
pad6.Length = 10

doc.recompute()
